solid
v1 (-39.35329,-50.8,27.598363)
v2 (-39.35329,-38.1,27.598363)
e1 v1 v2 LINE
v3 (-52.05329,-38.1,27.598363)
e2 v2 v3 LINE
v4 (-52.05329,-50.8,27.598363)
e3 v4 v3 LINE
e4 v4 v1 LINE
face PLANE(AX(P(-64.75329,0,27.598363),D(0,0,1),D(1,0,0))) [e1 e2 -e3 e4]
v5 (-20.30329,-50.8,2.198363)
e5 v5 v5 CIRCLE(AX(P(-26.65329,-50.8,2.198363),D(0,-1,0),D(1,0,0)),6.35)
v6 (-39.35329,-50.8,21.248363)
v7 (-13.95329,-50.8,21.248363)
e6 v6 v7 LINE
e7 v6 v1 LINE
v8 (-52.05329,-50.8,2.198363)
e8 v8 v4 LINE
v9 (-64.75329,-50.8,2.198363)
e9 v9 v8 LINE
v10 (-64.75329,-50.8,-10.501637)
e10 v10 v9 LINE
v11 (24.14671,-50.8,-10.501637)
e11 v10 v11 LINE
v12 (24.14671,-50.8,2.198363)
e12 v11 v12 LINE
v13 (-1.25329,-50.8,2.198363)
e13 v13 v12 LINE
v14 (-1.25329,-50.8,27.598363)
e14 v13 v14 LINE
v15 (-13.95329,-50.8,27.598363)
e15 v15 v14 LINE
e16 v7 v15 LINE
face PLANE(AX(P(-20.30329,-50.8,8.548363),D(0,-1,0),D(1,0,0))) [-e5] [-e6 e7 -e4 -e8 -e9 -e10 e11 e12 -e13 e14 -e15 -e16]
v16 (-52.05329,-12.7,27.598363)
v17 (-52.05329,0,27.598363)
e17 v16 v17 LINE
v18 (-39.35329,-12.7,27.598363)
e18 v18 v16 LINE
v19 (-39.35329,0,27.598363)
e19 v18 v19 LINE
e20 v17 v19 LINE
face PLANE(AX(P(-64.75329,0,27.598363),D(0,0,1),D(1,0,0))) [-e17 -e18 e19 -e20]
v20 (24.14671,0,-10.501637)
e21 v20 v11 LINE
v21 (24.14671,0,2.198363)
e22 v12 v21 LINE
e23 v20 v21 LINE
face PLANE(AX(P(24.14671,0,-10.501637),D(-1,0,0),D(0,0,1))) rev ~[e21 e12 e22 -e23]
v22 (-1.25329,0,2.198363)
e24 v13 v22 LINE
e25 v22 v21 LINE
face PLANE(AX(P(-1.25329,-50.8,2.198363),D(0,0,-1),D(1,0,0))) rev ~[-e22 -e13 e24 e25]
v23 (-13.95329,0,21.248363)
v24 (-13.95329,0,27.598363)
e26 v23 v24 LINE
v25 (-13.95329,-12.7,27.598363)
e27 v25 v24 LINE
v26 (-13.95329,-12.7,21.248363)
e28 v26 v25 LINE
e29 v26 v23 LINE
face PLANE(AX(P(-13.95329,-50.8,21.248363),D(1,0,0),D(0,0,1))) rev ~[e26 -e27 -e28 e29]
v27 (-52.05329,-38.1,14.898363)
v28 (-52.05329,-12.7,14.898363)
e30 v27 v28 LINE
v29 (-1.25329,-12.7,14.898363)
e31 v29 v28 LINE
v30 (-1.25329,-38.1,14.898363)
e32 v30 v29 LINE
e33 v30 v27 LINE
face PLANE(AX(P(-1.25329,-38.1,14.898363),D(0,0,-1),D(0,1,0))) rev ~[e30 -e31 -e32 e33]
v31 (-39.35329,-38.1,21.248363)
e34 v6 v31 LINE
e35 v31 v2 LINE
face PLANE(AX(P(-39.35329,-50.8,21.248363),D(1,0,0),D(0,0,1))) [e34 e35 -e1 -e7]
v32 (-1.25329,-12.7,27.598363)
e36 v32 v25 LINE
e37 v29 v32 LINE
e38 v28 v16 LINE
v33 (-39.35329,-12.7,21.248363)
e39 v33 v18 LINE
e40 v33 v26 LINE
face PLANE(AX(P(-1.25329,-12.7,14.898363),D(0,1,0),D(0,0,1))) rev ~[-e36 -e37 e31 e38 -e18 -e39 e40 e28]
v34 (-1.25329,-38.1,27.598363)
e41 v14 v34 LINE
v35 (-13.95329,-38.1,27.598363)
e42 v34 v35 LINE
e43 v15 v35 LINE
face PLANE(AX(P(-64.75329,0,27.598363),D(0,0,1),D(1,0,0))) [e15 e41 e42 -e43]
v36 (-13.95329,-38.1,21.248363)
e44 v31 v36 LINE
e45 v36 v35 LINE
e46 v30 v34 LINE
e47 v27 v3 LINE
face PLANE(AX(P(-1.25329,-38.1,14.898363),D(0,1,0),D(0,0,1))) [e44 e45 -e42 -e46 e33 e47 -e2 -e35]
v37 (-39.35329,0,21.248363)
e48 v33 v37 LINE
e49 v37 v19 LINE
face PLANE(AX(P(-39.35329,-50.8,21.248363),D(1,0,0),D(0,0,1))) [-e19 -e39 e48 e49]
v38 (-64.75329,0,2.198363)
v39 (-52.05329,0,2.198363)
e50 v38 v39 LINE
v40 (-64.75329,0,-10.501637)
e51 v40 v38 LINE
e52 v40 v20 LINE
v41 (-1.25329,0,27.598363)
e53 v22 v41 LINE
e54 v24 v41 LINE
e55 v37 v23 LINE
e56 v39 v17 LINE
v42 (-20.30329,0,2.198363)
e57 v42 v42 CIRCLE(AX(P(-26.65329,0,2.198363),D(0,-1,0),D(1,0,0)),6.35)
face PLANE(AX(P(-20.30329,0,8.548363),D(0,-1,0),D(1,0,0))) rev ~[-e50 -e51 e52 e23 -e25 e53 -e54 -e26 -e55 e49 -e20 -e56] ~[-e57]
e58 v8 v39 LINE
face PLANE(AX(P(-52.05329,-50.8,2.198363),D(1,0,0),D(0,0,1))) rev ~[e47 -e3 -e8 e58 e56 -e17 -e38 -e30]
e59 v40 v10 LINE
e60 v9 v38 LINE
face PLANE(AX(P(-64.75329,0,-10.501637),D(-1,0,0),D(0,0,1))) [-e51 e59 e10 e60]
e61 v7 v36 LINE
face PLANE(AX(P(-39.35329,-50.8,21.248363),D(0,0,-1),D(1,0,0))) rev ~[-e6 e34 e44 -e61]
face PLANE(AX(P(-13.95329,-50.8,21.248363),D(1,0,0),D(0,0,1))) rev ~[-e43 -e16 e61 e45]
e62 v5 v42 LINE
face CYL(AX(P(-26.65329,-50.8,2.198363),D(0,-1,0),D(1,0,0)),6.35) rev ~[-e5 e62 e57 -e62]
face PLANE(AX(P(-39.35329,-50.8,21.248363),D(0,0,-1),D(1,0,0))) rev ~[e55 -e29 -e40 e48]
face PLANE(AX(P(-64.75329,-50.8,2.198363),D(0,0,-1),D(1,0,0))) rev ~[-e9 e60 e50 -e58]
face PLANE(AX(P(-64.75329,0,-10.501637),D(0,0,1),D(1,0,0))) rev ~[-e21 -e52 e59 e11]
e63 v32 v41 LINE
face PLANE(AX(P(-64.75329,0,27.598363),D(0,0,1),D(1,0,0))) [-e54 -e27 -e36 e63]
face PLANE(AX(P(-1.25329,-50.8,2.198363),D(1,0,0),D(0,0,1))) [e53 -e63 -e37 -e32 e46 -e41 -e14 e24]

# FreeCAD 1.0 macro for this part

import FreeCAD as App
import Part
import Sketcher
Q = App.Units.Quantity

doc = App.newDocument("Part")
params = doc.addObject("Spreadsheet::Sheet", "Params")
for row, (alias, value) in enumerate([
    ("sketch1_width", "3.5 in"),
    ("sketch1_height", "1.5 in"),
    ("pad1_length", "2 in"),
    ("sketch2_width", "1 in"),
    ("sketch2_height", "0.25 in"),
    ("sketch3_height", "1 in"),
    ("sketch3_width", "0.5 in"),
    ("sketch4_width", "1 in"),
    ("sketch5_width", "1 in"),
    ("sketch5_height", "0.5 in"),
    ("sketch6_diameter", "0.5 in"),
], start=1):
    params.set(f"A{row}", alias)
    params.set(f"B{row}", "=" + value)
    params.setAlias(f"B{row}", alias)

body = doc.addObject("PartDesign::Body", "Body")

# Sketch on XZ plane
sketch1 = body.newObject("Sketcher::SketchObject", "Sketch")
sketch1.AttachmentSupport = (doc.getObject("XZ_Plane"), [""])
sketch1.MapMode = "FlatFace"
sketch1.addGeometry(Part.LineSegment(App.Vector(-65, 28, 0), App.Vector(-65, -11, 0)), False)
sketch1.addGeometry(Part.LineSegment(App.Vector(-65, -11, 0), App.Vector(24, -11, 0)), False)
sketch1.addGeometry(Part.LineSegment(App.Vector(24, -11, 0), App.Vector(24, 28, 0)), False)
sketch1.addGeometry(Part.LineSegment(App.Vector(24, 28, 0), App.Vector(-65, 28, 0)), False)
sketch1.addConstraint(Sketcher.Constraint("Coincident", 0, 2, 1, 1))
sketch1.addConstraint(Sketcher.Constraint("Coincident", 1, 2, 2, 1))
sketch1.addConstraint(Sketcher.Constraint("Coincident", 2, 2, 3, 1))
sketch1.addConstraint(Sketcher.Constraint("Coincident", 3, 2, 0, 1))
sketch1.addConstraint(Sketcher.Constraint("Vertical", 0))
sketch1.addConstraint(Sketcher.Constraint("Horizontal", 1))
sketch1.addConstraint(Sketcher.Constraint("Vertical", 2))
sketch1.addConstraint(Sketcher.Constraint("Horizontal", 3))
sketch1.addConstraint(Sketcher.Constraint("DistanceX", 1, 1, 1, 2, Q("3.5 in")))
sketch1.addConstraint(Sketcher.Constraint("DistanceY", 0, 2, 0, 1, Q("1.5 in")))
sketch1.addConstraint(Sketcher.Constraint("DistanceX", 0, 2, -1, 1, 64.75329))
sketch1.addConstraint(Sketcher.Constraint("DistanceY", 0, 2, -1, 1, 10.501637))
sketch1.setExpression("Constraints[8]", "Params.sketch1_width")
sketch1.setExpression("Constraints[9]", "Params.sketch1_height")
pad1 = body.newObject("PartDesign::Pad", "Pad")
pad1.Profile = sketch1
pad1.setExpression("Length", "Params.pad1_length")

# Sketch on XZ plane
sketch2 = body.newObject("Sketcher::SketchObject", "Sketch001")
sketch2.AttachmentSupport = (doc.getObject("XZ_Plane"), [""])
sketch2.MapMode = "FlatFace"
sketch2.AttachmentOffset = App.Placement(App.Vector(0, 0, 2 * 25.4), App.Rotation())
sketch2.addGeometry(Part.LineSegment(App.Vector(-39, 28, 0), App.Vector(-39, 21, 0)), False)
sketch2.addGeometry(Part.LineSegment(App.Vector(-39, 21, 0), App.Vector(-14, 21, 0)), False)
sketch2.addGeometry(Part.LineSegment(App.Vector(-14, 21, 0), App.Vector(-14, 28, 0)), False)
sketch2.addGeometry(Part.LineSegment(App.Vector(-14, 28, 0), App.Vector(-39, 28, 0)), False)
sketch2.addConstraint(Sketcher.Constraint("Coincident", 0, 2, 1, 1))
sketch2.addConstraint(Sketcher.Constraint("Coincident", 1, 2, 2, 1))
sketch2.addConstraint(Sketcher.Constraint("Coincident", 2, 2, 3, 1))
sketch2.addConstraint(Sketcher.Constraint("Coincident", 3, 2, 0, 1))
sketch2.addConstraint(Sketcher.Constraint("Vertical", 0))
sketch2.addConstraint(Sketcher.Constraint("Horizontal", 1))
sketch2.addConstraint(Sketcher.Constraint("Vertical", 2))
sketch2.addConstraint(Sketcher.Constraint("Horizontal", 3))
sketch2.addConstraint(Sketcher.Constraint("DistanceX", 1, 1, 1, 2, Q("1 in")))
sketch2.addConstraint(Sketcher.Constraint("DistanceY", 0, 2, 0, 1, Q("0.25 in")))
sketch2.addConstraint(Sketcher.Constraint("DistanceX", 0, 2, -1, 1, 39.35329))
sketch2.addConstraint(Sketcher.Constraint("DistanceY", -1, 1, 0, 2, 21.248363))
sketch2.setExpression("Constraints[8]", "Params.sketch2_width")
sketch2.setExpression("Constraints[9]", "Params.sketch2_height")
pocket1 = body.newObject("PartDesign::Pocket", "Pocket")
pocket1.Profile = sketch2
pocket1.Type = "ThroughAll"

# Sketch on XZ plane
sketch3 = body.newObject("Sketcher::SketchObject", "Sketch002")
sketch3.AttachmentSupport = (doc.getObject("XZ_Plane"), [""])
sketch3.MapMode = "FlatFace"
sketch3.AttachmentOffset = App.Placement(App.Vector(0, 0, 2 * 25.4), App.Rotation())
sketch3.addGeometry(Part.LineSegment(App.Vector(-65, 28, 0), App.Vector(-65, 2, 0)), False)
sketch3.addGeometry(Part.LineSegment(App.Vector(-65, 2, 0), App.Vector(-52, 2, 0)), False)
sketch3.addGeometry(Part.LineSegment(App.Vector(-52, 2, 0), App.Vector(-52, 28, 0)), False)
sketch3.addGeometry(Part.LineSegment(App.Vector(-52, 28, 0), App.Vector(-65, 28, 0)), False)
sketch3.addConstraint(Sketcher.Constraint("Coincident", 0, 2, 1, 1))
sketch3.addConstraint(Sketcher.Constraint("Coincident", 1, 2, 2, 1))
sketch3.addConstraint(Sketcher.Constraint("Coincident", 2, 2, 3, 1))
sketch3.addConstraint(Sketcher.Constraint("Coincident", 3, 2, 0, 1))
sketch3.addConstraint(Sketcher.Constraint("Vertical", 0))
sketch3.addConstraint(Sketcher.Constraint("Horizontal", 1))
sketch3.addConstraint(Sketcher.Constraint("Vertical", 2))
sketch3.addConstraint(Sketcher.Constraint("Horizontal", 3))
sketch3.addConstraint(Sketcher.Constraint("DistanceY", 0, 2, 0, 1, Q("1 in")))
sketch3.addConstraint(Sketcher.Constraint("DistanceX", 1, 1, 1, 2, Q("0.5 in")))
sketch3.addConstraint(Sketcher.Constraint("DistanceX", 0, 2, -1, 1, 64.75329))
sketch3.addConstraint(Sketcher.Constraint("DistanceY", -1, 1, 0, 2, 2.198363))
sketch3.setExpression("Constraints[8]", "Params.sketch3_height")
sketch3.setExpression("Constraints[9]", "Params.sketch3_width")
pocket2 = body.newObject("PartDesign::Pocket", "Pocket001")
pocket2.Profile = sketch3
pocket2.Type = "ThroughAll"

# Sketch on XZ plane
sketch4 = body.newObject("Sketcher::SketchObject", "Sketch003")
sketch4.AttachmentSupport = (doc.getObject("XZ_Plane"), [""])
sketch4.MapMode = "FlatFace"
sketch4.AttachmentOffset = App.Placement(App.Vector(0, 0, 2 * 25.4), App.Rotation())
sketch4.addGeometry(Part.LineSegment(App.Vector(-1, 28, 0), App.Vector(-1, 2, 0)), False)
sketch4.addGeometry(Part.LineSegment(App.Vector(-1, 2, 0), App.Vector(24, 2, 0)), False)
sketch4.addGeometry(Part.LineSegment(App.Vector(24, 2, 0), App.Vector(24, 28, 0)), False)
sketch4.addGeometry(Part.LineSegment(App.Vector(24, 28, 0), App.Vector(-1, 28, 0)), False)
sketch4.addConstraint(Sketcher.Constraint("Coincident", 0, 2, 1, 1))
sketch4.addConstraint(Sketcher.Constraint("Coincident", 1, 2, 2, 1))
sketch4.addConstraint(Sketcher.Constraint("Coincident", 2, 2, 3, 1))
sketch4.addConstraint(Sketcher.Constraint("Coincident", 3, 2, 0, 1))
sketch4.addConstraint(Sketcher.Constraint("Vertical", 0))
sketch4.addConstraint(Sketcher.Constraint("Horizontal", 1))
sketch4.addConstraint(Sketcher.Constraint("Vertical", 2))
sketch4.addConstraint(Sketcher.Constraint("Horizontal", 3))
sketch4.addConstraint(Sketcher.Constraint("Equal", 3, 0))
sketch4.addConstraint(Sketcher.Constraint("DistanceX", 1, 1, 1, 2, Q("1 in")))
sketch4.addConstraint(Sketcher.Constraint("DistanceX", 0, 2, -1, 1, 1.25329))
sketch4.addConstraint(Sketcher.Constraint("DistanceY", -1, 1, 0, 2, 2.198363))
sketch4.setExpression("Constraints[9]", "Params.sketch4_width")
pocket3 = body.newObject("PartDesign::Pocket", "Pocket002")
pocket3.Profile = sketch4
pocket3.Type = "ThroughAll"

# Sketch on YZ plane
sketch5 = body.newObject("Sketcher::SketchObject", "Sketch004")
sketch5.AttachmentSupport = (doc.getObject("YZ_Plane"), [""])
sketch5.MapMode = "FlatFace"
sketch5.AttachmentOffset = App.Placement(App.Vector(0, 0, -1.25329), App.Rotation())
sketch5.addGeometry(Part.LineSegment(App.Vector(-38, 28, 0), App.Vector(-38, 15, 0)), False)
sketch5.addGeometry(Part.LineSegment(App.Vector(-38, 15, 0), App.Vector(-13, 15, 0)), False)
sketch5.addGeometry(Part.LineSegment(App.Vector(-13, 15, 0), App.Vector(-13, 28, 0)), False)
sketch5.addGeometry(Part.LineSegment(App.Vector(-13, 28, 0), App.Vector(-38, 28, 0)), False)
sketch5.addConstraint(Sketcher.Constraint("Coincident", 0, 2, 1, 1))
sketch5.addConstraint(Sketcher.Constraint("Coincident", 1, 2, 2, 1))
sketch5.addConstraint(Sketcher.Constraint("Coincident", 2, 2, 3, 1))
sketch5.addConstraint(Sketcher.Constraint("Coincident", 3, 2, 0, 1))
sketch5.addConstraint(Sketcher.Constraint("Vertical", 0))
sketch5.addConstraint(Sketcher.Constraint("Horizontal", 1))
sketch5.addConstraint(Sketcher.Constraint("Vertical", 2))
sketch5.addConstraint(Sketcher.Constraint("Horizontal", 3))
sketch5.addConstraint(Sketcher.Constraint("DistanceX", 1, 1, 1, 2, Q("1 in")))
sketch5.addConstraint(Sketcher.Constraint("DistanceY", 0, 2, 0, 1, Q("0.5 in")))
sketch5.addConstraint(Sketcher.Constraint("DistanceX", 0, 2, -1, 1, Q("1.5 in")))
sketch5.addConstraint(Sketcher.Constraint("DistanceY", -1, 1, 0, 2, 14.898363))
sketch5.setExpression("Constraints[8]", "Params.sketch5_width")
sketch5.setExpression("Constraints[9]", "Params.sketch5_height")
pocket4 = body.newObject("PartDesign::Pocket", "Pocket003")
pocket4.Profile = sketch5
pocket4.Type = "ThroughAll"

# Sketch on XZ plane
sketch6 = body.newObject("Sketcher::SketchObject", "Sketch005")
sketch6.AttachmentSupport = (doc.getObject("XZ_Plane"), [""])
sketch6.MapMode = "FlatFace"
sketch6.AttachmentOffset = App.Placement(App.Vector(0, 0, 2 * 25.4), App.Rotation())
sketch6.addGeometry(Part.Circle(App.Vector(-27, 2, 0), App.Vector(0, 0, 1), 6), False)
sketch6.addConstraint(Sketcher.Constraint("Diameter", 0, Q("0.5 in")))
sketch6.addConstraint(Sketcher.Constraint("DistanceX", 0, 3, -1, 1, 26.65329))
sketch6.addConstraint(Sketcher.Constraint("DistanceY", -1, 1, 0, 3, 2.198363))
sketch6.setExpression("Constraints[0]", "Params.sketch6_diameter")
pocket5 = body.newObject("PartDesign::Pocket", "Pocket004")
pocket5.Profile = sketch6
pocket5.Type = "ThroughAll"

doc.recompute()
